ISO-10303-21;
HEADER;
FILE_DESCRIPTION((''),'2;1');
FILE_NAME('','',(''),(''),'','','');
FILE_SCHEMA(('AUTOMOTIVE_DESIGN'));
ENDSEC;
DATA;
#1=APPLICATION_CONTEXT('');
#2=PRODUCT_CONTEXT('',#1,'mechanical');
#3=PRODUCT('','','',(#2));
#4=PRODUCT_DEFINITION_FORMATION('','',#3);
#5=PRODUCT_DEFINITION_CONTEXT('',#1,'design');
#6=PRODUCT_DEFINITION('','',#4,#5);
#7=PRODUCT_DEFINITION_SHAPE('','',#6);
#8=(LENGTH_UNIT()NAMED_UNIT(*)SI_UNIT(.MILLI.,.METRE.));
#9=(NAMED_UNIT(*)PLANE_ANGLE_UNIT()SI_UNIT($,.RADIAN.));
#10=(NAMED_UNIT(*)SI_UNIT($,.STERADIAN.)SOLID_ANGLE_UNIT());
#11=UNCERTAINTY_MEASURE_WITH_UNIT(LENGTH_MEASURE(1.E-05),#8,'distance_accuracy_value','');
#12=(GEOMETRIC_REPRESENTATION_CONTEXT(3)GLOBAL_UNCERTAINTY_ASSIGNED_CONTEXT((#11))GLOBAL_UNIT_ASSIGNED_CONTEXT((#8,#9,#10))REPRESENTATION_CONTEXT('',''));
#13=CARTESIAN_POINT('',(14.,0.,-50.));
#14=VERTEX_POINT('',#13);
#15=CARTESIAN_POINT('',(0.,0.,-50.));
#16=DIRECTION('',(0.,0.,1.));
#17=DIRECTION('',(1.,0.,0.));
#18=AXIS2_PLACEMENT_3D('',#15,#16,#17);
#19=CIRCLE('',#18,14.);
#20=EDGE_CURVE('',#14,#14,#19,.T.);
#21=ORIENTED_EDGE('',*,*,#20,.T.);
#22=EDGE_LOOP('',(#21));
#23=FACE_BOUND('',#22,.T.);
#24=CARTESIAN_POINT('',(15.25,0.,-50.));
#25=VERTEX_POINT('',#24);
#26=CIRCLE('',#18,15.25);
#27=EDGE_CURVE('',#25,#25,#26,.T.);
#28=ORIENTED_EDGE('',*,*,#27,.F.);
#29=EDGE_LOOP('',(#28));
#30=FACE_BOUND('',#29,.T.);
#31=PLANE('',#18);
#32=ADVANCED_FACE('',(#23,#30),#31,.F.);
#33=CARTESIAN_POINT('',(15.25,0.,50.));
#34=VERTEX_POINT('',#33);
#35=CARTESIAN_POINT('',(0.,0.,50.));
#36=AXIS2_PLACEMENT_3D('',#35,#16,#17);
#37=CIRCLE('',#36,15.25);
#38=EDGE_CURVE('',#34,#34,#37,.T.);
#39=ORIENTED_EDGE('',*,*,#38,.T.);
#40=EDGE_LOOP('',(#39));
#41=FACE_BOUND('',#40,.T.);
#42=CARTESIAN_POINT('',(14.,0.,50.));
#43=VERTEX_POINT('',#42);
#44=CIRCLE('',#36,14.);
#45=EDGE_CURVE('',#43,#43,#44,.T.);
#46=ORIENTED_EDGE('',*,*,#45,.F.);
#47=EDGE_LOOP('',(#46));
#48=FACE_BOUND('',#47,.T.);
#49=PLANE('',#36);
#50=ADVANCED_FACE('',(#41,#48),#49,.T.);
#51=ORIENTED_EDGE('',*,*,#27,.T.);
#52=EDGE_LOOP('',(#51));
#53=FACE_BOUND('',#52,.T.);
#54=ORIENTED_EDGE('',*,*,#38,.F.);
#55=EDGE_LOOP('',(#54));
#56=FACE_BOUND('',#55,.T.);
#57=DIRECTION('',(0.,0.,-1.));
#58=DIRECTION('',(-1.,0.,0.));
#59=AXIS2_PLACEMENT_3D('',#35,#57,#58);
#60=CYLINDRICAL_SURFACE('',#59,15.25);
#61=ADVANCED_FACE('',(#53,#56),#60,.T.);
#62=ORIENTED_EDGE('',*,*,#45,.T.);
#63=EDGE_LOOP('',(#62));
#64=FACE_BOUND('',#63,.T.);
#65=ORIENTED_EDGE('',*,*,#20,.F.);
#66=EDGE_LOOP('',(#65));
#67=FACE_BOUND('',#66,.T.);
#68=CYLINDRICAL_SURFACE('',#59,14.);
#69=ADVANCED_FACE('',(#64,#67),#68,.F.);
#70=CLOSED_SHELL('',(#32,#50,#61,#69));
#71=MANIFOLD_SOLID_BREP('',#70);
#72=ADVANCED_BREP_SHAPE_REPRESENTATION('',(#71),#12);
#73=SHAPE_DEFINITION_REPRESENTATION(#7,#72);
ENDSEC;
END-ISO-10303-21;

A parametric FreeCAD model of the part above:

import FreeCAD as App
import Part
import Sketcher

V = App.Vector
Q = App.Units.Quantity

doc = App.newDocument("Part")
params = doc.addObject("Spreadsheet::Sheet", "Params")
for row, (alias, value) in enumerate([
    ("sketch1_diameter", "28 mm"),
    ("sketch1_diameter2", "30.5 mm"),
    ("pad1_length", "100 mm"),
], start=1):
    params.set(f"A{row}", alias)
    params.set(f"B{row}", "=" + value)
    params.setAlias(f"B{row}", alias)

body = doc.addObject("PartDesign::Body", "Body")

sketch1 = doc.addObject("Sketcher::SketchObject", "Sketch")
body.addObject(sketch1)
sketch1.AttachmentSupport = (doc.XY_Plane, [""])
sketch1.MapMode = "FlatFace"
sketch1.addGeometry([
    Part.Circle(V(0, 0, 0), V(0, 0, 1), 15),
    Part.Circle(V(0, 0, 0), V(0, 0, 1), 14),
], False)
sketch1.addConstraint([
    Sketcher.Constraint("Coincident", 0, 3, -1, 1),
    Sketcher.Constraint("Coincident", 1, 3, -1, 1),
    Sketcher.Constraint("Diameter", 1, Q("28 mm")),
    Sketcher.Constraint("Diameter", 0, Q("30.5 mm")),
])
sketch1.setExpression("Constraints[2]", "Params.sketch1_diameter")
sketch1.setExpression("Constraints[3]", "Params.sketch1_diameter2")
pad1 = doc.addObject("PartDesign::Pad", "Pad")
body.addObject(pad1)
pad1.Profile = sketch1
pad1.setExpression("Length", "Params.pad1_length")
pad1.Midplane = True

doc.recompute()
